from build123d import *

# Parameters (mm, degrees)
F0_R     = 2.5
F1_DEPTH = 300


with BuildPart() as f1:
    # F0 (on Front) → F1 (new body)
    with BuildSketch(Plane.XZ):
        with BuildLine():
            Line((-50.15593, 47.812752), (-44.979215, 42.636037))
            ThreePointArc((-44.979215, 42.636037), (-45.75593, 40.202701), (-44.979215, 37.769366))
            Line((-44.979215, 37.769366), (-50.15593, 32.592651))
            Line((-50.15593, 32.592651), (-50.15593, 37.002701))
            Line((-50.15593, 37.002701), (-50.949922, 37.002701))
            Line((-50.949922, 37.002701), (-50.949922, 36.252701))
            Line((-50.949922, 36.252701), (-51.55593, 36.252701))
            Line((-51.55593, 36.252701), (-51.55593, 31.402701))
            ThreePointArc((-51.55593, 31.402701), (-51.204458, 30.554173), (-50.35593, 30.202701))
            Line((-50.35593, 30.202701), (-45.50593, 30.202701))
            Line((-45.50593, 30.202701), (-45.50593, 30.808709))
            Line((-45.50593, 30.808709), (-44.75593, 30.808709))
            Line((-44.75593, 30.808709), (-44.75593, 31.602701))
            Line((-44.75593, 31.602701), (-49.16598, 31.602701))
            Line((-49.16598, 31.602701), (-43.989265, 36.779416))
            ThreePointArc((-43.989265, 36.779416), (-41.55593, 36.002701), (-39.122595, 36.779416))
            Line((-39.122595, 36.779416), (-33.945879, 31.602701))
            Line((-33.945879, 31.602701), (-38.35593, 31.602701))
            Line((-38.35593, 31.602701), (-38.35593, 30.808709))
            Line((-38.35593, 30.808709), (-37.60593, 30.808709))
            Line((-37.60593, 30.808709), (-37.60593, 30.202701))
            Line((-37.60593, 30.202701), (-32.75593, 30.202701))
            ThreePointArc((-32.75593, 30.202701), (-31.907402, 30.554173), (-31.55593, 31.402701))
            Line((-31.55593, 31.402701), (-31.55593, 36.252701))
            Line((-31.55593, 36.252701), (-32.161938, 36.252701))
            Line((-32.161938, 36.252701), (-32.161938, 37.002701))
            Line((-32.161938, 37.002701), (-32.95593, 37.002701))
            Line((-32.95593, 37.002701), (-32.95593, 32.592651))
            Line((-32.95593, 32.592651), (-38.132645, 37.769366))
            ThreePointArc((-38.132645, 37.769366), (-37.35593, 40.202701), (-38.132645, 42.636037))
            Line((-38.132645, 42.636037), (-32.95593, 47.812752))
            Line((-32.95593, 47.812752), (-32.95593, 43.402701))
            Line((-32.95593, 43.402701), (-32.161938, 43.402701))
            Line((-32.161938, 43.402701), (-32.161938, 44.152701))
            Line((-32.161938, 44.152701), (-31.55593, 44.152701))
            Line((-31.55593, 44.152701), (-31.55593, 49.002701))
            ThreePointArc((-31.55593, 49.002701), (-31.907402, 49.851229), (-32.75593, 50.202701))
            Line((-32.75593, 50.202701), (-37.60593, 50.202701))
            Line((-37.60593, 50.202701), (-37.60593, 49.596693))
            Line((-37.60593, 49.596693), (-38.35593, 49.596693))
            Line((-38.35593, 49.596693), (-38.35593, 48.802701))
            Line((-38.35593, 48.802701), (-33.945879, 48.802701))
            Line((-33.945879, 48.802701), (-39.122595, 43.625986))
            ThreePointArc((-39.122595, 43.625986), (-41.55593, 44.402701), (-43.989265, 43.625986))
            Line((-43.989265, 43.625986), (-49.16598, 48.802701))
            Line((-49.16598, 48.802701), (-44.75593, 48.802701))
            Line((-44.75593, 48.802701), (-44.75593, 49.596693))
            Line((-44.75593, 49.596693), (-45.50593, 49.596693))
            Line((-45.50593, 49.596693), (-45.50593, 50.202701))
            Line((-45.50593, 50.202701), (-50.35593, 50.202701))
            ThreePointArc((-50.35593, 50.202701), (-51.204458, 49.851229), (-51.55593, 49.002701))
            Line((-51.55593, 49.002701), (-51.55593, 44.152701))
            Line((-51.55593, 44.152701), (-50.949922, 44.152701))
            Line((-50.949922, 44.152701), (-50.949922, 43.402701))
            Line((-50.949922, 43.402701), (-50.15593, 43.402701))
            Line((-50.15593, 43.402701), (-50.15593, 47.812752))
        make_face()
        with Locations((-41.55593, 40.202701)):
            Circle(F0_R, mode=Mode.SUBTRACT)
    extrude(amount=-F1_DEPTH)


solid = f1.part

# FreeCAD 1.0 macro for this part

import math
import FreeCAD as App
import Part
import Sketcher

V = App.Vector
Q = App.Units.Quantity

doc = App.newDocument("Part")
body = doc.addObject("PartDesign::Body", "Body")

# Sketch on XZ plane
sketch1 = body.newObject("Sketcher::SketchObject", "Sketch")
sketch1.AttachmentSupport = (doc.getObject("XZ_Plane"), [""])
sketch1.MapMode = "FlatFace"
sketch1.addGeometry(Part.LineSegment(V(-50.2, 47.8, 0), V(-45, 42.6, 0)), False)
sketch1.addGeometry(Part.ArcOfCircle(Part.Circle(V(-41.6, 40.2, 0), V(0, 0, 1), 4.2), math.radians(145), math.radians(215)), False)
sketch1.addGeometry(Part.LineSegment(V(-45, 37.8, 0), V(-50.2, 32.6, 0)), False)
sketch1.addGeometry(Part.LineSegment(V(-50.2, 32.6, 0), V(-50.2, 37, 0)), False)
sketch1.addGeometry(Part.LineSegment(V(-50.2, 37, 0), V(-50.9, 37, 0)), False)
sketch1.addGeometry(Part.LineSegment(V(-50.9, 37, 0), V(-50.9, 36.3, 0)), False)
sketch1.addGeometry(Part.LineSegment(V(-50.9, 36.3, 0), V(-51.6, 36.3, 0)), False)
sketch1.addGeometry(Part.LineSegment(V(-51.6, 36.3, 0), V(-51.6, 31.4, 0)), False)
sketch1.addGeometry(Part.ArcOfCircle(Part.Circle(V(-50.4, 31.4, 0), V(0, 0, 1), 1.2), math.radians(-180), math.radians(-90)), False)
sketch1.addGeometry(Part.LineSegment(V(-50.4, 30.2, 0), V(-45.5, 30.2, 0)), False)
sketch1.addGeometry(Part.LineSegment(V(-45.5, 30.2, 0), V(-45.5, 30.8, 0)), False)
sketch1.addGeometry(Part.LineSegment(V(-45.5, 30.8, 0), V(-44.8, 30.8, 0)), False)
sketch1.addGeometry(Part.LineSegment(V(-44.8, 30.8, 0), V(-44.8, 31.6, 0)), False)
sketch1.addGeometry(Part.LineSegment(V(-44.8, 31.6, 0), V(-49.2, 31.6, 0)), False)
sketch1.addGeometry(Part.LineSegment(V(-49.2, 31.6, 0), V(-44, 36.8, 0)), False)
sketch1.addGeometry(Part.ArcOfCircle(Part.Circle(V(-41.6, 40.2, 0), V(0, 0, 1), 4.2), math.radians(-125), math.radians(-55)), False)
sketch1.addGeometry(Part.LineSegment(V(-39.1, 36.8, 0), V(-33.9, 31.6, 0)), False)
sketch1.addGeometry(Part.LineSegment(V(-33.9, 31.6, 0), V(-38.4, 31.6, 0)), False)
sketch1.addGeometry(Part.LineSegment(V(-38.4, 31.6, 0), V(-38.4, 30.8, 0)), False)
sketch1.addGeometry(Part.LineSegment(V(-38.4, 30.8, 0), V(-37.6, 30.8, 0)), False)
sketch1.addGeometry(Part.LineSegment(V(-37.6, 30.8, 0), V(-37.6, 30.2, 0)), False)
sketch1.addGeometry(Part.LineSegment(V(-37.6, 30.2, 0), V(-32.8, 30.2, 0)), False)
sketch1.addGeometry(Part.ArcOfCircle(Part.Circle(V(-32.8, 31.4, 0), V(0, 0, 1), 1.2), math.radians(-90), math.radians(0)), False)
sketch1.addGeometry(Part.LineSegment(V(-31.6, 31.4, 0), V(-31.6, 36.3, 0)), False)
sketch1.addGeometry(Part.LineSegment(V(-31.6, 36.3, 0), V(-32.2, 36.3, 0)), False)
sketch1.addGeometry(Part.LineSegment(V(-32.2, 36.3, 0), V(-32.2, 37, 0)), False)
sketch1.addGeometry(Part.LineSegment(V(-32.2, 37, 0), V(-33, 37, 0)), False)
sketch1.addGeometry(Part.LineSegment(V(-33, 37, 0), V(-33, 32.6, 0)), False)
sketch1.addGeometry(Part.LineSegment(V(-33, 32.6, 0), V(-38.1, 37.8, 0)), False)
sketch1.addGeometry(Part.ArcOfCircle(Part.Circle(V(-41.6, 40.2, 0), V(0, 0, 1), 4.2), math.radians(-35), math.radians(35)), False)
sketch1.addGeometry(Part.LineSegment(V(-38.1, 42.6, 0), V(-33, 47.8, 0)), False)
sketch1.addGeometry(Part.LineSegment(V(-33, 47.8, 0), V(-33, 43.4, 0)), False)
sketch1.addGeometry(Part.LineSegment(V(-33, 43.4, 0), V(-32.2, 43.4, 0)), False)
sketch1.addGeometry(Part.LineSegment(V(-32.2, 43.4, 0), V(-32.2, 44.2, 0)), False)
sketch1.addGeometry(Part.LineSegment(V(-32.2, 44.2, 0), V(-31.6, 44.2, 0)), False)
sketch1.addGeometry(Part.LineSegment(V(-31.6, 44.2, 0), V(-31.6, 49, 0)), False)
sketch1.addGeometry(Part.ArcOfCircle(Part.Circle(V(-32.8, 49, 0), V(0, 0, 1), 1.2), math.radians(0), math.radians(90)), False)
sketch1.addGeometry(Part.LineSegment(V(-32.8, 50.2, 0), V(-37.6, 50.2, 0)), False)
sketch1.addGeometry(Part.LineSegment(V(-37.6, 50.2, 0), V(-37.6, 49.6, 0)), False)
sketch1.addGeometry(Part.LineSegment(V(-37.6, 49.6, 0), V(-38.4, 49.6, 0)), False)
sketch1.addGeometry(Part.LineSegment(V(-38.4, 49.6, 0), V(-38.4, 48.8, 0)), False)
sketch1.addGeometry(Part.LineSegment(V(-38.4, 48.8, 0), V(-33.9, 48.8, 0)), False)
sketch1.addGeometry(Part.LineSegment(V(-33.9, 48.8, 0), V(-39.1, 43.6, 0)), False)
sketch1.addGeometry(Part.ArcOfCircle(Part.Circle(V(-41.6, 40.2, 0), V(0, 0, 1), 4.2), math.radians(55), math.radians(125)), False)
sketch1.addGeometry(Part.LineSegment(V(-44, 43.6, 0), V(-49.2, 48.8, 0)), False)
sketch1.addGeometry(Part.LineSegment(V(-49.2, 48.8, 0), V(-44.8, 48.8, 0)), False)
sketch1.addGeometry(Part.LineSegment(V(-44.8, 48.8, 0), V(-44.8, 49.6, 0)), False)
sketch1.addGeometry(Part.LineSegment(V(-44.8, 49.6, 0), V(-45.5, 49.6, 0)), False)
sketch1.addGeometry(Part.LineSegment(V(-45.5, 49.6, 0), V(-45.5, 50.2, 0)), False)
sketch1.addGeometry(Part.LineSegment(V(-45.5, 50.2, 0), V(-50.4, 50.2, 0)), False)
sketch1.addGeometry(Part.ArcOfCircle(Part.Circle(V(-50.4, 49, 0), V(0, 0, 1), 1.2), math.radians(90), math.radians(180)), False)
sketch1.addGeometry(Part.LineSegment(V(-51.6, 49, 0), V(-51.6, 44.2, 0)), False)
sketch1.addGeometry(Part.LineSegment(V(-51.6, 44.2, 0), V(-50.9, 44.2, 0)), False)
sketch1.addGeometry(Part.LineSegment(V(-50.9, 44.2, 0), V(-50.9, 43.4, 0)), False)
sketch1.addGeometry(Part.LineSegment(V(-50.9, 43.4, 0), V(-50.2, 43.4, 0)), False)
sketch1.addGeometry(Part.LineSegment(V(-50.2, 43.4, 0), V(-50.2, 47.8, 0)), False)
sketch1.addGeometry(Part.Circle(V(-41.6, 40.2, 0), V(0, 0, 1), 2.5), False)
sketch1.addConstraint(Sketcher.Constraint("Coincident", 0, 2, 1, 1))
sketch1.addConstraint(Sketcher.Constraint("Coincident", 1, 2, 2, 1))
sketch1.addConstraint(Sketcher.Constraint("Coincident", 2, 2, 3, 1))
sketch1.addConstraint(Sketcher.Constraint("Coincident", 3, 2, 4, 1))
sketch1.addConstraint(Sketcher.Constraint("Coincident", 4, 2, 5, 1))
sketch1.addConstraint(Sketcher.Constraint("Coincident", 5, 2, 6, 1))
sketch1.addConstraint(Sketcher.Constraint("Coincident", 6, 2, 7, 1))
sketch1.addConstraint(Sketcher.Constraint("Tangent", 7, 2, 8, 1))
sketch1.addConstraint(Sketcher.Constraint("Tangent", 8, 2, 9, 1))
sketch1.addConstraint(Sketcher.Constraint("Coincident", 9, 2, 10, 1))
sketch1.addConstraint(Sketcher.Constraint("Coincident", 10, 2, 11, 1))
sketch1.addConstraint(Sketcher.Constraint("Coincident", 11, 2, 12, 1))
sketch1.addConstraint(Sketcher.Constraint("Coincident", 12, 2, 13, 1))
sketch1.addConstraint(Sketcher.Constraint("Coincident", 13, 2, 14, 1))
sketch1.addConstraint(Sketcher.Constraint("Coincident", 14, 2, 15, 1))
sketch1.addConstraint(Sketcher.Constraint("Coincident", 15, 2, 16, 1))
sketch1.addConstraint(Sketcher.Constraint("Coincident", 16, 2, 17, 1))
sketch1.addConstraint(Sketcher.Constraint("Coincident", 17, 2, 18, 1))
sketch1.addConstraint(Sketcher.Constraint("Coincident", 18, 2, 19, 1))
sketch1.addConstraint(Sketcher.Constraint("Coincident", 19, 2, 20, 1))
sketch1.addConstraint(Sketcher.Constraint("Coincident", 20, 2, 21, 1))
sketch1.addConstraint(Sketcher.Constraint("Tangent", 21, 2, 22, 1))
sketch1.addConstraint(Sketcher.Constraint("Tangent", 22, 2, 23, 1))
sketch1.addConstraint(Sketcher.Constraint("Coincident", 23, 2, 24, 1))
sketch1.addConstraint(Sketcher.Constraint("Coincident", 24, 2, 25, 1))
sketch1.addConstraint(Sketcher.Constraint("Coincident", 25, 2, 26, 1))
sketch1.addConstraint(Sketcher.Constraint("Coincident", 26, 2, 27, 1))
sketch1.addConstraint(Sketcher.Constraint("Coincident", 27, 2, 28, 1))
sketch1.addConstraint(Sketcher.Constraint("Coincident", 28, 2, 29, 1))
sketch1.addConstraint(Sketcher.Constraint("Coincident", 29, 2, 30, 1))
sketch1.addConstraint(Sketcher.Constraint("Coincident", 30, 2, 31, 1))
sketch1.addConstraint(Sketcher.Constraint("Coincident", 31, 2, 32, 1))
sketch1.addConstraint(Sketcher.Constraint("Coincident", 32, 2, 33, 1))
sketch1.addConstraint(Sketcher.Constraint("Coincident", 33, 2, 34, 1))
sketch1.addConstraint(Sketcher.Constraint("Coincident", 34, 2, 35, 1))
sketch1.addConstraint(Sketcher.Constraint("Tangent", 35, 2, 36, 1))
sketch1.addConstraint(Sketcher.Constraint("Tangent", 36, 2, 37, 1))
sketch1.addConstraint(Sketcher.Constraint("Coincident", 37, 2, 38, 1))
sketch1.addConstraint(Sketcher.Constraint("Coincident", 38, 2, 39, 1))
sketch1.addConstraint(Sketcher.Constraint("Coincident", 39, 2, 40, 1))
sketch1.addConstraint(Sketcher.Constraint("Coincident", 40, 2, 41, 1))
sketch1.addConstraint(Sketcher.Constraint("Coincident", 41, 2, 42, 1))
sketch1.addConstraint(Sketcher.Constraint("Coincident", 42, 2, 43, 1))
sketch1.addConstraint(Sketcher.Constraint("Coincident", 43, 2, 44, 1))
sketch1.addConstraint(Sketcher.Constraint("Coincident", 44, 2, 45, 1))
sketch1.addConstraint(Sketcher.Constraint("Coincident", 45, 2, 46, 1))
sketch1.addConstraint(Sketcher.Constraint("Coincident", 46, 2, 47, 1))
sketch1.addConstraint(Sketcher.Constraint("Coincident", 47, 2, 48, 1))
sketch1.addConstraint(Sketcher.Constraint("Coincident", 48, 2, 49, 1))
sketch1.addConstraint(Sketcher.Constraint("Tangent", 49, 2, 50, 1))
sketch1.addConstraint(Sketcher.Constraint("Tangent", 50, 2, 51, 1))
sketch1.addConstraint(Sketcher.Constraint("Coincident", 51, 2, 52, 1))
sketch1.addConstraint(Sketcher.Constraint("Coincident", 52, 2, 53, 1))
sketch1.addConstraint(Sketcher.Constraint("Coincident", 53, 2, 54, 1))
sketch1.addConstraint(Sketcher.Constraint("Coincident", 54, 2, 55, 1))
sketch1.addConstraint(Sketcher.Constraint("Coincident", 55, 2, 0, 1))
sketch1.addConstraint(Sketcher.Constraint("Vertical", 3))
sketch1.addConstraint(Sketcher.Constraint("Horizontal", 4))
sketch1.addConstraint(Sketcher.Constraint("Vertical", 5))
sketch1.addConstraint(Sketcher.Constraint("Horizontal", 6))
sketch1.addConstraint(Sketcher.Constraint("Vertical", 7))
sketch1.addConstraint(Sketcher.Constraint("Horizontal", 9))
sketch1.addConstraint(Sketcher.Constraint("Vertical", 10))
sketch1.addConstraint(Sketcher.Constraint("Horizontal", 11))
sketch1.addConstraint(Sketcher.Constraint("Vertical", 12))
sketch1.addConstraint(Sketcher.Constraint("Horizontal", 13))
sketch1.addConstraint(Sketcher.Constraint("Horizontal", 17))
sketch1.addConstraint(Sketcher.Constraint("Vertical", 18))
sketch1.addConstraint(Sketcher.Constraint("Horizontal", 19))
sketch1.addConstraint(Sketcher.Constraint("Vertical", 20))
sketch1.addConstraint(Sketcher.Constraint("Horizontal", 21))
sketch1.addConstraint(Sketcher.Constraint("Vertical", 23))
sketch1.addConstraint(Sketcher.Constraint("Horizontal", 24))
sketch1.addConstraint(Sketcher.Constraint("Vertical", 25))
sketch1.addConstraint(Sketcher.Constraint("Horizontal", 26))
sketch1.addConstraint(Sketcher.Constraint("Vertical", 27))
sketch1.addConstraint(Sketcher.Constraint("Vertical", 31))
sketch1.addConstraint(Sketcher.Constraint("Horizontal", 32))
sketch1.addConstraint(Sketcher.Constraint("Vertical", 33))
sketch1.addConstraint(Sketcher.Constraint("Horizontal", 34))
sketch1.addConstraint(Sketcher.Constraint("Vertical", 35))
sketch1.addConstraint(Sketcher.Constraint("Horizontal", 37))
sketch1.addConstraint(Sketcher.Constraint("Vertical", 38))
sketch1.addConstraint(Sketcher.Constraint("Horizontal", 39))
sketch1.addConstraint(Sketcher.Constraint("Vertical", 40))
sketch1.addConstraint(Sketcher.Constraint("Horizontal", 41))
sketch1.addConstraint(Sketcher.Constraint("Horizontal", 45))
sketch1.addConstraint(Sketcher.Constraint("Vertical", 46))
sketch1.addConstraint(Sketcher.Constraint("Horizontal", 47))
sketch1.addConstraint(Sketcher.Constraint("Vertical", 48))
sketch1.addConstraint(Sketcher.Constraint("Horizontal", 49))
sketch1.addConstraint(Sketcher.Constraint("Vertical", 51))
sketch1.addConstraint(Sketcher.Constraint("Horizontal", 52))
sketch1.addConstraint(Sketcher.Constraint("Vertical", 53))
sketch1.addConstraint(Sketcher.Constraint("Horizontal", 54))
sketch1.addConstraint(Sketcher.Constraint("Vertical", 55))
sketch1.addConstraint(Sketcher.Constraint("Coincident", 15, 3, 1, 3))
sketch1.addConstraint(Sketcher.Constraint("Coincident", 29, 3, 1, 3))
sketch1.addConstraint(Sketcher.Constraint("Coincident", 43, 3, 1, 3))
sketch1.addConstraint(Sketcher.Constraint("Coincident", 56, 3, 1, 3))
sketch1.addConstraint(Sketcher.Constraint("Equal", 1, 15))
sketch1.addConstraint(Sketcher.Constraint("Equal", 8, 22))
sketch1.addConstraint(Sketcher.Constraint("Equal", 15, 29))
sketch1.addConstraint(Sketcher.Constraint("Equal", 22, 36))
sketch1.addConstraint(Sketcher.Constraint("Equal", 29, 43))
sketch1.addConstraint(Sketcher.Constraint("Equal", 36, 50))
sketch1.addConstraint(Sketcher.Constraint("Perpendicular", 0, 2))
sketch1.addConstraint(Sketcher.Constraint("Parallel", 2, 14))
sketch1.addConstraint(Sketcher.Constraint("Perpendicular", 14, 16))
sketch1.addConstraint(Sketcher.Constraint("Parallel", 16, 28))
sketch1.addConstraint(Sketcher.Constraint("Perpendicular", 28, 30))
sketch1.addConstraint(Sketcher.Constraint("Parallel", 30, 42))
sketch1.addConstraint(Sketcher.Constraint("Perpendicular", 42, 44))
sketch1.addConstraint(Sketcher.Constraint("Horizontal", 8, 3, 22, 3))
sketch1.addConstraint(Sketcher.Constraint("Horizontal", 36, 3, 50, 3))
sketch1.addConstraint(Sketcher.Constraint("Horizontal", 14, 2, 15, 2))
sketch1.addConstraint(Sketcher.Constraint("Horizontal", 13, 2, 16, 2))
sketch1.addConstraint(Sketcher.Constraint("Horizontal", 11, 2, 18, 2))
sketch1.addConstraint(Sketcher.Constraint("Horizontal", 6, 2, 23, 2))
sketch1.addConstraint(Sketcher.Constraint("Horizontal", 4, 2, 25, 2))
sketch1.addConstraint(Sketcher.Constraint("Horizontal", 2, 2, 27, 2))
sketch1.addConstraint(Sketcher.Constraint("Horizontal", 1, 2, 28, 2))
sketch1.addConstraint(Sketcher.Constraint("Horizontal", 0, 2, 29, 2))
sketch1.addConstraint(Sketcher.Constraint("Horizontal", 42, 2, 43, 2))
sketch1.addConstraint(Sketcher.Constraint("Horizontal", 41, 2, 44, 2))
sketch1.addConstraint(Sketcher.Constraint("Horizontal", 39, 2, 46, 2))
sketch1.addConstraint(Sketcher.Constraint("Horizontal", 34, 2, 51, 2))
sketch1.addConstraint(Sketcher.Constraint("Horizontal", 32, 2, 53, 2))
sketch1.addConstraint(Sketcher.Constraint("Horizontal", 30, 2, 55, 2))
sketch1.addConstraint(Sketcher.Constraint("Vertical", 22, 3, 36, 3))
sketch1.addConstraint(Sketcher.Constraint("Vertical", 8, 3, 50, 3))
sketch1.addConstraint(Sketcher.Constraint("Vertical", 0, 2, 1, 2))
sketch1.addConstraint(Sketcher.Constraint("Vertical", 27, 2, 30, 2))
sketch1.addConstraint(Sketcher.Constraint("Vertical", 25, 2, 32, 2))
sketch1.addConstraint(Sketcher.Constraint("Vertical", 20, 2, 37, 2))
sketch1.addConstraint(Sketcher.Constraint("Vertical", 18, 2, 39, 2))
sketch1.addConstraint(Sketcher.Constraint("Vertical", 16, 2, 41, 2))
sketch1.addConstraint(Sketcher.Constraint("Vertical", 15, 2, 42, 2))
sketch1.addConstraint(Sketcher.Constraint("Vertical", 13, 2, 44, 2))
sketch1.addConstraint(Sketcher.Constraint("Vertical", 12, 2, 45, 2))
sketch1.addConstraint(Sketcher.Constraint("Vertical", 10, 2, 47, 2))
sketch1.addConstraint(Sketcher.Constraint("Vertical", 5, 2, 52, 2))
sketch1.addConstraint(Sketcher.Constraint("Equal", 13, 17))
sketch1.addConstraint(Sketcher.Constraint("Equal", 11, 19))
sketch1.addConstraint(Sketcher.Constraint("Equal", 9, 21))
sketch1.addConstraint(Sketcher.Constraint("Equal", 6, 24))
sketch1.addConstraint(Sketcher.Constraint("Equal", 45, 3))
sketch1.addConstraint(Sketcher.Constraint("Equal", 47, 5))
sketch1.addConstraint(Sketcher.Constraint("Equal", 49, 7))
sketch1.addConstraint(Sketcher.Constraint("Equal", 52, 10))
sketch1.addConstraint(Sketcher.Constraint("Equal", 54, 12))
sketch1.addConstraint(Sketcher.Constraint("Equal", 27, 31))
sketch1.addConstraint(Sketcher.Constraint("Equal", 25, 33))
sketch1.addConstraint(Sketcher.Constraint("Equal", 23, 35))
sketch1.addConstraint(Sketcher.Constraint("Equal", 20, 38))
sketch1.addConstraint(Sketcher.Constraint("Equal", 2, 14))
sketch1.addConstraint(Sketcher.Constraint("Diameter", 56, Q("5 mm")))
sketch1.addConstraint(Sketcher.Constraint("Radius", 1, Q("4.200001 mm")))
sketch1.addConstraint(Sketcher.Constraint("Radius", 8, Q("1.2 mm")))
sketch1.addConstraint(Sketcher.Constraint("DistanceX", 9, 1, 9, 2, Q("4.85 mm")))
sketch1.addConstraint(Sketcher.Constraint("DistanceX", 11, 1, 11, 2, Q("0.75 mm")))
sketch1.addConstraint(Sketcher.Constraint("DistanceX", 13, 2, 13, 1, Q("4.41005 mm")))
sketch1.addConstraint(Sketcher.Constraint("DistanceY", 12, 1, 12, 2, Q("0.793992 mm")))
sketch1.addConstraint(Sketcher.Constraint("DistanceY", -1, 1, 1, 3, Q("40.202702 mm")))
sketch1.addConstraint(Sketcher.Constraint("DistanceY", -1, 1, 8, 3, Q("31.402701 mm")))
sketch1.addConstraint(Sketcher.Constraint("DistanceY", -1, 1, 12, 2, Q("31.602701 mm")))
sketch1.addConstraint(Sketcher.Constraint("DistanceX", 1, 3, -1, 1, Q("41.555929 mm")))
pad1 = body.newObject("PartDesign::Pad", "Pad")
pad1.Profile = sketch1
pad1.Length = 300
pad1.Reversed = True

doc.recompute()
